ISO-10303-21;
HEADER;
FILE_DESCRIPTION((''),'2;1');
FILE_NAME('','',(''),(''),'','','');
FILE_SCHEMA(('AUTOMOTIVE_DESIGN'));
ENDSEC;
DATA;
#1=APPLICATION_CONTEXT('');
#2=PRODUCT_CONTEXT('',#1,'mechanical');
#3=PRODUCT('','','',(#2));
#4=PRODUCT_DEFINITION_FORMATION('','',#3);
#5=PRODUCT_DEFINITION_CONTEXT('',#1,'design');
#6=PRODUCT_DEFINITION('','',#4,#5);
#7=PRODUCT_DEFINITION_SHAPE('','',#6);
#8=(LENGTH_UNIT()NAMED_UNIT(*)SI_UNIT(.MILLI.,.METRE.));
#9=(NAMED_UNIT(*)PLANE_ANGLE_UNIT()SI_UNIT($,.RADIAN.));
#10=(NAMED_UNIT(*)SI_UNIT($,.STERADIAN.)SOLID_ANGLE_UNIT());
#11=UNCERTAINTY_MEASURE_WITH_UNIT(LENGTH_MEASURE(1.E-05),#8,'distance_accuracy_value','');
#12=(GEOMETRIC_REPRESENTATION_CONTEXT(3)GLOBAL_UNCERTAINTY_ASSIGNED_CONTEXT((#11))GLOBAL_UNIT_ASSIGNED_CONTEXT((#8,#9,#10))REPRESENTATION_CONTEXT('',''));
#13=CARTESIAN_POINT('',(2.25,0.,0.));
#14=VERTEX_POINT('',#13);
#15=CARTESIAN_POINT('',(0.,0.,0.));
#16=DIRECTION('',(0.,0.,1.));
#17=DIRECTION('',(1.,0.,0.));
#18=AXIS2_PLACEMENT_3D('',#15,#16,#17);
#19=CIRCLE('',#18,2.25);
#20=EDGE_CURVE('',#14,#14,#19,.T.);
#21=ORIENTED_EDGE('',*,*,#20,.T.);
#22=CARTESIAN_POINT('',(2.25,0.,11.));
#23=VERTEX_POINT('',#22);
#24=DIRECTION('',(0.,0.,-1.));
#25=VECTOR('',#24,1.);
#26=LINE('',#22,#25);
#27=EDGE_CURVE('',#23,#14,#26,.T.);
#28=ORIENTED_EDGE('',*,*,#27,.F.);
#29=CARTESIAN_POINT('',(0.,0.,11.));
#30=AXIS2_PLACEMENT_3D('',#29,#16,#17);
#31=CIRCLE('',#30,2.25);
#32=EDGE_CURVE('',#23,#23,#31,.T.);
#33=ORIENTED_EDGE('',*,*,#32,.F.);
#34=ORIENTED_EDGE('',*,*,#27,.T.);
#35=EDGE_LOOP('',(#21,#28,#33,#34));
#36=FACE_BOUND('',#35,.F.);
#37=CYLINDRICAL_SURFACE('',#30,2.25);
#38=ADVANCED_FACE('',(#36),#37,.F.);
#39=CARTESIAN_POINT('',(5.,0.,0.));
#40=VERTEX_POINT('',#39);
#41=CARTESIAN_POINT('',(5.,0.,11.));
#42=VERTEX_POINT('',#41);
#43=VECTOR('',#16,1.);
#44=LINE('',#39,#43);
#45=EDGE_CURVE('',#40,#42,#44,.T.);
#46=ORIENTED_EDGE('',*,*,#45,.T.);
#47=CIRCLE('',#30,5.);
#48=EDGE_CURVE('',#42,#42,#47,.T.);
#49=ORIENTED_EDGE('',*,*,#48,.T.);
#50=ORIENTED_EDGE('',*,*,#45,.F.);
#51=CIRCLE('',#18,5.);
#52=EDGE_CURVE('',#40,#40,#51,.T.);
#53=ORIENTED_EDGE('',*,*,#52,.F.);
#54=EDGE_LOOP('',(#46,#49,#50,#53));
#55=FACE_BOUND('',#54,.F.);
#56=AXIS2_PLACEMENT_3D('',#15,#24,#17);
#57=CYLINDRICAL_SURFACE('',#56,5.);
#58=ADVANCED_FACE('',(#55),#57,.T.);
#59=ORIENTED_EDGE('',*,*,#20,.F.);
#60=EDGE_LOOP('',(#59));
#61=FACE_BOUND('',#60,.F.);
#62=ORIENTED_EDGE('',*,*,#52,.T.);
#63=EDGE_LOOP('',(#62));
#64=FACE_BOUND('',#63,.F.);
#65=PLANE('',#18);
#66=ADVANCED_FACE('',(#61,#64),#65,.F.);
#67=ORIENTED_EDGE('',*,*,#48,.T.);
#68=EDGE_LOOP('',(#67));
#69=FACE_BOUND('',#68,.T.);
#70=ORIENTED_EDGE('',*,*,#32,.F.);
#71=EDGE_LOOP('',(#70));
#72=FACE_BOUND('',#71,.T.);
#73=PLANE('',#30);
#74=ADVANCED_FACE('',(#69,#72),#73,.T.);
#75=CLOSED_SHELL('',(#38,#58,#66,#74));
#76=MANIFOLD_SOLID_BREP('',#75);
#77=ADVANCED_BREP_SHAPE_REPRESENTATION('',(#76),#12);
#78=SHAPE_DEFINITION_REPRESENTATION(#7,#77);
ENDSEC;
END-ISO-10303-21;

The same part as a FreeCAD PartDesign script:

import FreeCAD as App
import Part
import Sketcher

V = App.Vector

doc = App.newDocument("Part")
params = doc.addObject("Spreadsheet::Sheet", "Params")
for row, (alias, value) in enumerate([
    ("sketch1_diameter", "10 mm"),
    ("pad1_length", "11 mm"),
    ("sketch2_diameter", "4.5 mm"),
], start=1):
    params.set(f"A{row}", alias)
    params.set(f"B{row}", "=" + value)
    params.setAlias(f"B{row}", alias)

body = doc.addObject("PartDesign::Body", "Body")

# Sketch on XY plane
sketch1 = body.newObject("Sketcher::SketchObject", "Sketch")
sketch1.AttachmentSupport = (doc.getObject("XY_Plane"), [""])
sketch1.MapMode = "FlatFace"
sketch1.addGeometry(Part.Circle(V(0, 0, 0), V(0, 0, 1), 5), False)
sketch1.addConstraint(Sketcher.Constraint("Coincident", 0, 3, -1, 1))
sketch1.addConstraint(Sketcher.Constraint("Diameter", 0, 10.0))
sketch1.setExpression("Constraints[1]", "Params.sketch1_diameter")
pad1 = body.newObject("PartDesign::Pad", "Pad")
pad1.Profile = sketch1
pad1.setExpression("Length", "Params.pad1_length")

# Sketch on XY plane
sketch2 = body.newObject("Sketcher::SketchObject", "Sketch001")
sketch2.AttachmentSupport = (doc.getObject("XY_Plane"), [""])
sketch2.MapMode = "FlatFace"
sketch2.AttachmentOffset = App.Placement(V(0, 0, 11), App.Rotation())
sketch2.addGeometry(Part.Circle(V(0, 0, 0), V(0, 0, 1), 2.2), False)
sketch2.addConstraint(Sketcher.Constraint("Coincident", 0, 3, -1, 1))
sketch2.addConstraint(Sketcher.Constraint("Diameter", 0, 4.5))
sketch2.setExpression("Constraints[1]", "Params.sketch2_diameter")
pocket1 = body.newObject("PartDesign::Pocket", "Pocket")
pocket1.Profile = sketch2
pocket1.Type = "ThroughAll"

doc.recompute()
